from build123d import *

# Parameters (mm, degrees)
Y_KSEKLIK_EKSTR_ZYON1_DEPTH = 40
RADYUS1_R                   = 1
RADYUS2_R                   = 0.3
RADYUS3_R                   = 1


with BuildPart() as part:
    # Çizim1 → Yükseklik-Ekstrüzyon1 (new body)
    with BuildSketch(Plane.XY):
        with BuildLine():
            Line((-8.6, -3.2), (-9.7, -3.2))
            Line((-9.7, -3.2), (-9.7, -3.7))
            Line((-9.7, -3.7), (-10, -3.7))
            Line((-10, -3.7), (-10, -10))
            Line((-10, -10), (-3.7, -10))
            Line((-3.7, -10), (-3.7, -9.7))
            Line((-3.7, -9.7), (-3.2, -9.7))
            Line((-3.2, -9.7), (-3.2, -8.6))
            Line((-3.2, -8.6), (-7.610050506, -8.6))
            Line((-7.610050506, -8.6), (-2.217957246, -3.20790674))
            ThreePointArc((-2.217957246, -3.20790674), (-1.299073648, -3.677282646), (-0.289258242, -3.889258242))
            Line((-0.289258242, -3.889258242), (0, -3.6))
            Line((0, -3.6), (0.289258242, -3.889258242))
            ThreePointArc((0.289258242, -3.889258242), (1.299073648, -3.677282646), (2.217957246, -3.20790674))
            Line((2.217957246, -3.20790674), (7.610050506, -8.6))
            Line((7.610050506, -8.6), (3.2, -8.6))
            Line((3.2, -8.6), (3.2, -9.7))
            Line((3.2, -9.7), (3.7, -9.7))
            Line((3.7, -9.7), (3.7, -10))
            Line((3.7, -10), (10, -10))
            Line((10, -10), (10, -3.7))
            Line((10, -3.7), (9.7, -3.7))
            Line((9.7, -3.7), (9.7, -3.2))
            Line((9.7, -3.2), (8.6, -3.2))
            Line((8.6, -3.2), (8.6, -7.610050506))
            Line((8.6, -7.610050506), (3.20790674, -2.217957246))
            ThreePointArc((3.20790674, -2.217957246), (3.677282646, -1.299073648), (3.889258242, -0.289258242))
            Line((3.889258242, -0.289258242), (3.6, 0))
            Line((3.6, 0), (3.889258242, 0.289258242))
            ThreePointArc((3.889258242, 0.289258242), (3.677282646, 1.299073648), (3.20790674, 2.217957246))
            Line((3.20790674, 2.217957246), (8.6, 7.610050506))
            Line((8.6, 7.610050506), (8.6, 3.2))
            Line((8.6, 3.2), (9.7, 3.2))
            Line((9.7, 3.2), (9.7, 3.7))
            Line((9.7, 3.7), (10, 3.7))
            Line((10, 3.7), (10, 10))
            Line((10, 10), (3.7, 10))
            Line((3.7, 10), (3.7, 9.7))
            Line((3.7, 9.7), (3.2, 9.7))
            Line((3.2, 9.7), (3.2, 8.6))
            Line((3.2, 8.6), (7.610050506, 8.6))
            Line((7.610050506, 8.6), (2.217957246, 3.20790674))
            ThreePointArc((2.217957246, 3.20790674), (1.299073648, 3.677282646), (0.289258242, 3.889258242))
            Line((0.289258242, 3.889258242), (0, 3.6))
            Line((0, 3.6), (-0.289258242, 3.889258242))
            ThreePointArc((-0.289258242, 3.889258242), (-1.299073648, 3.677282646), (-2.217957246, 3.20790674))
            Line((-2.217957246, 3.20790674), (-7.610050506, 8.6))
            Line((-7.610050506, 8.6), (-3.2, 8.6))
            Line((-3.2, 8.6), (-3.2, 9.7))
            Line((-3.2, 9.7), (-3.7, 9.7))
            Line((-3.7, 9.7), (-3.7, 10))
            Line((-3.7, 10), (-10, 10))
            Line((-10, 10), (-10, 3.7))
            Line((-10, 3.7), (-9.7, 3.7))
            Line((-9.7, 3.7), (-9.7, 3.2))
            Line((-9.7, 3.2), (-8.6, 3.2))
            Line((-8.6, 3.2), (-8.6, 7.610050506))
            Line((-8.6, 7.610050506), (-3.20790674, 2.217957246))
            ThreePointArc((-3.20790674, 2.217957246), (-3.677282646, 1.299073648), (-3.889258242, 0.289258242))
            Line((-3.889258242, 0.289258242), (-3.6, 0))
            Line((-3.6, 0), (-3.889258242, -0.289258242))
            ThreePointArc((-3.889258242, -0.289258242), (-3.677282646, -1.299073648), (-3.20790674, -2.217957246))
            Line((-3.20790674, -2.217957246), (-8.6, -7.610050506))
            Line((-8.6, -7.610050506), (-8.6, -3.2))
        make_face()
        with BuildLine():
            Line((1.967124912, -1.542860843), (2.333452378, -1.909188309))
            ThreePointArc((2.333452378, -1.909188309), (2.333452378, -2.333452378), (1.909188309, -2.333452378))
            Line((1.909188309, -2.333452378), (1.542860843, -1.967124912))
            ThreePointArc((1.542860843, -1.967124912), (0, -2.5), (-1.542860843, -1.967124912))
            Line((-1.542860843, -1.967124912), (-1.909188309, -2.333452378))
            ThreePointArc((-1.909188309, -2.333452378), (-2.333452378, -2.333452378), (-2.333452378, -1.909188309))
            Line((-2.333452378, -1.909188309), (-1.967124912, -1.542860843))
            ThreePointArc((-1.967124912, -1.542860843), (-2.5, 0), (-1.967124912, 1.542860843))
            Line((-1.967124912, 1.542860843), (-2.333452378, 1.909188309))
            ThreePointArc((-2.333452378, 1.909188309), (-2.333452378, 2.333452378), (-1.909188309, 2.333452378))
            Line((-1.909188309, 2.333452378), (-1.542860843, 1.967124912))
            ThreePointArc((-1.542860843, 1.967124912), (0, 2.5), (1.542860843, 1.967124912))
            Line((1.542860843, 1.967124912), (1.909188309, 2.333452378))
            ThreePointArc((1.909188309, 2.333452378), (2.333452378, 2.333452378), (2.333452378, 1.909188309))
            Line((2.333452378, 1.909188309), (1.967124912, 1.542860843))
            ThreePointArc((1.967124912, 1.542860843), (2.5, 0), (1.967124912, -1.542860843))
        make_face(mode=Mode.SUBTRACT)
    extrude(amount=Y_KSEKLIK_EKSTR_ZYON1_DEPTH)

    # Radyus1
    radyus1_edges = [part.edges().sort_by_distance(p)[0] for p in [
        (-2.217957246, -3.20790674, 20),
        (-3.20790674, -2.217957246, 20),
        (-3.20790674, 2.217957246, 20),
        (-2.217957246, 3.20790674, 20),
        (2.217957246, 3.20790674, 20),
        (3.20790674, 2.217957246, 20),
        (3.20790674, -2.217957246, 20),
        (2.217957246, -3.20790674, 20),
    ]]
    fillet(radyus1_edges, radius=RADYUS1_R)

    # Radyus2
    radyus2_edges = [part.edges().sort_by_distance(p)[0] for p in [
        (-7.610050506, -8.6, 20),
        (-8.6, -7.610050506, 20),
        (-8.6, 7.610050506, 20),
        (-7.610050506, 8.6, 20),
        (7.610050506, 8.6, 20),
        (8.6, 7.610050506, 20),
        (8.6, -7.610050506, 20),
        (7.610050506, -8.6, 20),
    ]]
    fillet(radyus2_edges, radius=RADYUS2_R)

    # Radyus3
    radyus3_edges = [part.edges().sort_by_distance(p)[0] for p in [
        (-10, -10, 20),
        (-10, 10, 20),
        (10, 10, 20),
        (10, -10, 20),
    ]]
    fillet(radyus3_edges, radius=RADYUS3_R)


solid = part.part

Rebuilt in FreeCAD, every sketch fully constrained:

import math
import FreeCAD as App
import Part
import Sketcher


def edges_at(feature, points):
    """Names of the edges that pass closest to the given points."""
    edges = feature.Shape.Edges
    near = lambda p: min(range(len(edges)), key=lambda i: edges[i].distToShape(Part.Vertex(*p))[0])
    return sorted({f"Edge{near(p) + 1}" for p in points})

doc = App.newDocument("Part")
params = doc.addObject("Spreadsheet::Sheet", "Params")
for row, (alias, value) in enumerate([
    ("sketch1_radius", "3.9 mm"),
    ("sketch1_radius2", "2.5 mm"),
    ("sketch1_radius3", "0.3 mm"),
    ("sketch1_width", "1.1 mm"),
    ("sketch1_width2", "0.3 mm"),
    ("pad1_length", "40 mm"),
    ("fillet_radius", "1 mm"),
    ("fillet2_radius", "0.3 mm"),
    ("fillet3_radius", "1 mm"),
], start=1):
    params.set(f"A{row}", alias)
    params.set(f"B{row}", "=" + value)
    params.setAlias(f"B{row}", alias)

body = doc.addObject("PartDesign::Body", "Body")

# Sketch on XY plane
sketch1 = doc.addObject("Sketcher::SketchObject", "Sketch")
body.addObject(sketch1)
sketch1.AttachmentSupport = (doc.XY_Plane, [""])
sketch1.MapMode = "FlatFace"
sketch1.addGeometry(Part.LineSegment(App.Vector(-8.6, -3.2, 0), App.Vector(-9.7, -3.2, 0)), False)
sketch1.addGeometry(Part.LineSegment(App.Vector(-9.7, -3.2, 0), App.Vector(-9.7, -3.7, 0)), False)
sketch1.addGeometry(Part.LineSegment(App.Vector(-9.7, -3.7, 0), App.Vector(-10, -3.7, 0)), False)
sketch1.addGeometry(Part.LineSegment(App.Vector(-10, -3.7, 0), App.Vector(-10, -10, 0)), False)
sketch1.addGeometry(Part.LineSegment(App.Vector(-10, -10, 0), App.Vector(-3.7, -10, 0)), False)
sketch1.addGeometry(Part.LineSegment(App.Vector(-3.7, -10, 0), App.Vector(-3.7, -9.7, 0)), False)
sketch1.addGeometry(Part.LineSegment(App.Vector(-3.7, -9.7, 0), App.Vector(-3.2, -9.7, 0)), False)
sketch1.addGeometry(Part.LineSegment(App.Vector(-3.2, -9.7, 0), App.Vector(-3.2, -8.6, 0)), False)
sketch1.addGeometry(Part.LineSegment(App.Vector(-3.2, -8.6, 0), App.Vector(-7.610051, -8.6, 0)), False)
sketch1.addGeometry(Part.LineSegment(App.Vector(-7.610051, -8.6, 0), App.Vector(-2.217957, -3.207907, 0)), False)
sketch1.addGeometry(Part.ArcOfCircle(Part.Circle(App.Vector(0, 0, 0), App.Vector(0, 0, 1), 3.9), math.radians(-124.660109), math.radians(-94.253464)), False)
sketch1.addGeometry(Part.LineSegment(App.Vector(-0.289258, -3.889258, 0), App.Vector(0, -3.6, 0)), False)
sketch1.addGeometry(Part.LineSegment(App.Vector(0, -3.6, 0), App.Vector(0.289258, -3.889258, 0)), False)
sketch1.addGeometry(Part.ArcOfCircle(Part.Circle(App.Vector(0, 0, 0), App.Vector(0, 0, 1), 3.9), math.radians(-85.746536), math.radians(-55.339891)), False)
sketch1.addGeometry(Part.LineSegment(App.Vector(2.217957, -3.207907, 0), App.Vector(7.610051, -8.6, 0)), False)
sketch1.addGeometry(Part.LineSegment(App.Vector(7.610051, -8.6, 0), App.Vector(3.2, -8.6, 0)), False)
sketch1.addGeometry(Part.LineSegment(App.Vector(3.2, -8.6, 0), App.Vector(3.2, -9.7, 0)), False)
sketch1.addGeometry(Part.LineSegment(App.Vector(3.2, -9.7, 0), App.Vector(3.7, -9.7, 0)), False)
sketch1.addGeometry(Part.LineSegment(App.Vector(3.7, -9.7, 0), App.Vector(3.7, -10, 0)), False)
sketch1.addGeometry(Part.LineSegment(App.Vector(3.7, -10, 0), App.Vector(10, -10, 0)), False)
sketch1.addGeometry(Part.LineSegment(App.Vector(10, -10, 0), App.Vector(10, -3.7, 0)), False)
sketch1.addGeometry(Part.LineSegment(App.Vector(10, -3.7, 0), App.Vector(9.7, -3.7, 0)), False)
sketch1.addGeometry(Part.LineSegment(App.Vector(9.7, -3.7, 0), App.Vector(9.7, -3.2, 0)), False)
sketch1.addGeometry(Part.LineSegment(App.Vector(9.7, -3.2, 0), App.Vector(8.6, -3.2, 0)), False)
sketch1.addGeometry(Part.LineSegment(App.Vector(8.6, -3.2, 0), App.Vector(8.6, -7.610051, 0)), False)
sketch1.addGeometry(Part.LineSegment(App.Vector(8.6, -7.610051, 0), App.Vector(3.207907, -2.217957, 0)), False)
sketch1.addGeometry(Part.ArcOfCircle(Part.Circle(App.Vector(0, 0, 0), App.Vector(0, 0, 1), 3.9), math.radians(-34.660109), math.radians(-4.253464)), False)
sketch1.addGeometry(Part.LineSegment(App.Vector(3.889258, -0.289258, 0), App.Vector(3.6, 0, 0)), False)
sketch1.addGeometry(Part.LineSegment(App.Vector(3.6, 0, 0), App.Vector(3.889258, 0.289258, 0)), False)
sketch1.addGeometry(Part.ArcOfCircle(Part.Circle(App.Vector(0, 0, 0), App.Vector(0, 0, 1), 3.9), math.radians(4.253464), math.radians(34.660109)), False)
sketch1.addGeometry(Part.LineSegment(App.Vector(3.207907, 2.217957, 0), App.Vector(8.6, 7.610051, 0)), False)
sketch1.addGeometry(Part.LineSegment(App.Vector(8.6, 7.610051, 0), App.Vector(8.6, 3.2, 0)), False)
sketch1.addGeometry(Part.LineSegment(App.Vector(8.6, 3.2, 0), App.Vector(9.7, 3.2, 0)), False)
sketch1.addGeometry(Part.LineSegment(App.Vector(9.7, 3.2, 0), App.Vector(9.7, 3.7, 0)), False)
sketch1.addGeometry(Part.LineSegment(App.Vector(9.7, 3.7, 0), App.Vector(10, 3.7, 0)), False)
sketch1.addGeometry(Part.LineSegment(App.Vector(10, 3.7, 0), App.Vector(10, 10, 0)), False)
sketch1.addGeometry(Part.LineSegment(App.Vector(10, 10, 0), App.Vector(3.7, 10, 0)), False)
sketch1.addGeometry(Part.LineSegment(App.Vector(3.7, 10, 0), App.Vector(3.7, 9.7, 0)), False)
sketch1.addGeometry(Part.LineSegment(App.Vector(3.7, 9.7, 0), App.Vector(3.2, 9.7, 0)), False)
sketch1.addGeometry(Part.LineSegment(App.Vector(3.2, 9.7, 0), App.Vector(3.2, 8.6, 0)), False)
sketch1.addGeometry(Part.LineSegment(App.Vector(3.2, 8.6, 0), App.Vector(7.610051, 8.6, 0)), False)
sketch1.addGeometry(Part.LineSegment(App.Vector(7.610051, 8.6, 0), App.Vector(2.217957, 3.207907, 0)), False)
sketch1.addGeometry(Part.ArcOfCircle(Part.Circle(App.Vector(0, 0, 0), App.Vector(0, 0, 1), 3.9), math.radians(55.339891), math.radians(85.746536)), False)
sketch1.addGeometry(Part.LineSegment(App.Vector(0.289258, 3.889258, 0), App.Vector(0, 3.6, 0)), False)
sketch1.addGeometry(Part.LineSegment(App.Vector(0, 3.6, 0), App.Vector(-0.289258, 3.889258, 0)), False)
sketch1.addGeometry(Part.ArcOfCircle(Part.Circle(App.Vector(0, 0, 0), App.Vector(0, 0, 1), 3.9), math.radians(94.253464), math.radians(124.660109)), False)
sketch1.addGeometry(Part.LineSegment(App.Vector(-2.217957, 3.207907, 0), App.Vector(-7.610051, 8.6, 0)), False)
sketch1.addGeometry(Part.LineSegment(App.Vector(-7.610051, 8.6, 0), App.Vector(-3.2, 8.6, 0)), False)
sketch1.addGeometry(Part.LineSegment(App.Vector(-3.2, 8.6, 0), App.Vector(-3.2, 9.7, 0)), False)
sketch1.addGeometry(Part.LineSegment(App.Vector(-3.2, 9.7, 0), App.Vector(-3.7, 9.7, 0)), False)
sketch1.addGeometry(Part.LineSegment(App.Vector(-3.7, 9.7, 0), App.Vector(-3.7, 10, 0)), False)
sketch1.addGeometry(Part.LineSegment(App.Vector(-3.7, 10, 0), App.Vector(-10, 10, 0)), False)
sketch1.addGeometry(Part.LineSegment(App.Vector(-10, 10, 0), App.Vector(-10, 3.7, 0)), False)
sketch1.addGeometry(Part.LineSegment(App.Vector(-10, 3.7, 0), App.Vector(-9.7, 3.7, 0)), False)
sketch1.addGeometry(Part.LineSegment(App.Vector(-9.7, 3.7, 0), App.Vector(-9.7, 3.2, 0)), False)
sketch1.addGeometry(Part.LineSegment(App.Vector(-9.7, 3.2, 0), App.Vector(-8.6, 3.2, 0)), False)
sketch1.addGeometry(Part.LineSegment(App.Vector(-8.6, 3.2, 0), App.Vector(-8.6, 7.610051, 0)), False)
sketch1.addGeometry(Part.LineSegment(App.Vector(-8.6, 7.610051, 0), App.Vector(-3.207907, 2.217957, 0)), False)
sketch1.addGeometry(Part.ArcOfCircle(Part.Circle(App.Vector(0, 0, 0), App.Vector(0, 0, 1), 3.9), math.radians(145.339891), math.radians(175.746536)), False)
sketch1.addGeometry(Part.LineSegment(App.Vector(-3.889258, 0.289258, 0), App.Vector(-3.6, 0, 0)), False)
sketch1.addGeometry(Part.LineSegment(App.Vector(-3.6, 0, 0), App.Vector(-3.889258, -0.289258, 0)), False)
sketch1.addGeometry(Part.ArcOfCircle(Part.Circle(App.Vector(0, 0, 0), App.Vector(0, 0, 1), 3.9), math.radians(-175.746536), math.radians(-145.339891)), False)
sketch1.addGeometry(Part.LineSegment(App.Vector(-3.207907, -2.217957, 0), App.Vector(-8.6, -7.610051, 0)), False)
sketch1.addGeometry(Part.LineSegment(App.Vector(-8.6, -7.610051, 0), App.Vector(-8.6, -3.2, 0)), False)
sketch1.addGeometry(Part.ArcOfCircle(Part.Circle(App.Vector(0, 0, 0), App.Vector(0, 0, 1), 2.5), math.radians(-38.107897), math.radians(38.107897)), False)
sketch1.addGeometry(Part.LineSegment(App.Vector(1.967125, -1.542861, 0), App.Vector(2.333452, -1.909188, 0)), False)
sketch1.addGeometry(Part.ArcOfCircle(Part.Circle(App.Vector(2.12132, -2.12132, 0), App.Vector(0, 0, 1), 0.3), math.radians(-135), math.radians(45)), False)
sketch1.addGeometry(Part.LineSegment(App.Vector(1.909188, -2.333452, 0), App.Vector(1.542861, -1.967125, 0)), False)
sketch1.addGeometry(Part.ArcOfCircle(Part.Circle(App.Vector(0, 0, 0), App.Vector(0, 0, 1), 2.5), math.radians(-128.107897), math.radians(-51.892103)), False)
sketch1.addGeometry(Part.LineSegment(App.Vector(-1.542861, -1.967125, 0), App.Vector(-1.909188, -2.333452, 0)), False)
sketch1.addGeometry(Part.ArcOfCircle(Part.Circle(App.Vector(-2.12132, -2.12132, 0), App.Vector(0, 0, 1), 0.3), math.radians(135), math.radians(315)), False)
sketch1.addGeometry(Part.LineSegment(App.Vector(-2.333452, -1.909188, 0), App.Vector(-1.967125, -1.542861, 0)), False)
sketch1.addGeometry(Part.ArcOfCircle(Part.Circle(App.Vector(0, 0, 0), App.Vector(0, 0, 1), 2.5), math.radians(141.892103), math.radians(218.107897)), False)
sketch1.addGeometry(Part.LineSegment(App.Vector(-1.967125, 1.542861, 0), App.Vector(-2.333452, 1.909188, 0)), False)
sketch1.addGeometry(Part.ArcOfCircle(Part.Circle(App.Vector(-2.12132, 2.12132, 0), App.Vector(0, 0, 1), 0.3), math.radians(45), math.radians(225)), False)
sketch1.addGeometry(Part.LineSegment(App.Vector(-1.909188, 2.333452, 0), App.Vector(-1.542861, 1.967125, 0)), False)
sketch1.addGeometry(Part.ArcOfCircle(Part.Circle(App.Vector(0, 0, 0), App.Vector(0, 0, 1), 2.5), math.radians(51.892103), math.radians(128.107897)), False)
sketch1.addGeometry(Part.LineSegment(App.Vector(1.542861, 1.967125, 0), App.Vector(1.909188, 2.333452, 0)), False)
sketch1.addGeometry(Part.ArcOfCircle(Part.Circle(App.Vector(2.12132, 2.12132, 0), App.Vector(0, 0, 1), 0.3), math.radians(-45), math.radians(135)), False)
sketch1.addGeometry(Part.LineSegment(App.Vector(2.333452, 1.909188, 0), App.Vector(1.967125, 1.542861, 0)), False)
sketch1.addConstraint(Sketcher.Constraint("Coincident", 0, 2, 1, 1))
sketch1.addConstraint(Sketcher.Constraint("Coincident", 1, 2, 2, 1))
sketch1.addConstraint(Sketcher.Constraint("Coincident", 2, 2, 3, 1))
sketch1.addConstraint(Sketcher.Constraint("Coincident", 3, 2, 4, 1))
sketch1.addConstraint(Sketcher.Constraint("Coincident", 4, 2, 5, 1))
sketch1.addConstraint(Sketcher.Constraint("Coincident", 5, 2, 6, 1))
sketch1.addConstraint(Sketcher.Constraint("Coincident", 6, 2, 7, 1))
sketch1.addConstraint(Sketcher.Constraint("Coincident", 7, 2, 8, 1))
sketch1.addConstraint(Sketcher.Constraint("Coincident", 8, 2, 9, 1))
sketch1.addConstraint(Sketcher.Constraint("Coincident", 9, 2, 10, 1))
sketch1.addConstraint(Sketcher.Constraint("Coincident", 10, 2, 11, 1))
sketch1.addConstraint(Sketcher.Constraint("Coincident", 11, 2, 12, 1))
sketch1.addConstraint(Sketcher.Constraint("Coincident", 12, 2, 13, 1))
sketch1.addConstraint(Sketcher.Constraint("Coincident", 13, 2, 14, 1))
sketch1.addConstraint(Sketcher.Constraint("Coincident", 14, 2, 15, 1))
sketch1.addConstraint(Sketcher.Constraint("Coincident", 15, 2, 16, 1))
sketch1.addConstraint(Sketcher.Constraint("Coincident", 16, 2, 17, 1))
sketch1.addConstraint(Sketcher.Constraint("Coincident", 17, 2, 18, 1))
sketch1.addConstraint(Sketcher.Constraint("Coincident", 18, 2, 19, 1))
sketch1.addConstraint(Sketcher.Constraint("Coincident", 19, 2, 20, 1))
sketch1.addConstraint(Sketcher.Constraint("Coincident", 20, 2, 21, 1))
sketch1.addConstraint(Sketcher.Constraint("Coincident", 21, 2, 22, 1))
sketch1.addConstraint(Sketcher.Constraint("Coincident", 22, 2, 23, 1))
sketch1.addConstraint(Sketcher.Constraint("Coincident", 23, 2, 24, 1))
sketch1.addConstraint(Sketcher.Constraint("Coincident", 24, 2, 25, 1))
sketch1.addConstraint(Sketcher.Constraint("Coincident", 25, 2, 26, 1))
sketch1.addConstraint(Sketcher.Constraint("Coincident", 26, 2, 27, 1))
sketch1.addConstraint(Sketcher.Constraint("Coincident", 27, 2, 28, 1))
sketch1.addConstraint(Sketcher.Constraint("Coincident", 28, 2, 29, 1))
sketch1.addConstraint(Sketcher.Constraint("Coincident", 29, 2, 30, 1))
sketch1.addConstraint(Sketcher.Constraint("Coincident", 30, 2, 31, 1))
sketch1.addConstraint(Sketcher.Constraint("Coincident", 31, 2, 32, 1))
sketch1.addConstraint(Sketcher.Constraint("Coincident", 32, 2, 33, 1))
sketch1.addConstraint(Sketcher.Constraint("Coincident", 33, 2, 34, 1))
sketch1.addConstraint(Sketcher.Constraint("Coincident", 34, 2, 35, 1))
sketch1.addConstraint(Sketcher.Constraint("Coincident", 35, 2, 36, 1))
sketch1.addConstraint(Sketcher.Constraint("Coincident", 36, 2, 37, 1))
sketch1.addConstraint(Sketcher.Constraint("Coincident", 37, 2, 38, 1))
sketch1.addConstraint(Sketcher.Constraint("Coincident", 38, 2, 39, 1))
sketch1.addConstraint(Sketcher.Constraint("Coincident", 39, 2, 40, 1))
sketch1.addConstraint(Sketcher.Constraint("Coincident", 40, 2, 41, 1))
sketch1.addConstraint(Sketcher.Constraint("Coincident", 41, 2, 42, 1))
sketch1.addConstraint(Sketcher.Constraint("Coincident", 42, 2, 43, 1))
sketch1.addConstraint(Sketcher.Constraint("Coincident", 43, 2, 44, 1))
sketch1.addConstraint(Sketcher.Constraint("Coincident", 44, 2, 45, 1))
sketch1.addConstraint(Sketcher.Constraint("Coincident", 45, 2, 46, 1))
sketch1.addConstraint(Sketcher.Constraint("Coincident", 46, 2, 47, 1))
sketch1.addConstraint(Sketcher.Constraint("Coincident", 47, 2, 48, 1))
sketch1.addConstraint(Sketcher.Constraint("Coincident", 48, 2, 49, 1))
sketch1.addConstraint(Sketcher.Constraint("Coincident", 49, 2, 50, 1))
sketch1.addConstraint(Sketcher.Constraint("Coincident", 50, 2, 51, 1))
sketch1.addConstraint(Sketcher.Constraint("Coincident", 51, 2, 52, 1))
sketch1.addConstraint(Sketcher.Constraint("Coincident", 52, 2, 53, 1))
sketch1.addConstraint(Sketcher.Constraint("Coincident", 53, 2, 54, 1))
sketch1.addConstraint(Sketcher.Constraint("Coincident", 54, 2, 55, 1))
sketch1.addConstraint(Sketcher.Constraint("Coincident", 55, 2, 56, 1))
sketch1.addConstraint(Sketcher.Constraint("Coincident", 56, 2, 57, 1))
sketch1.addConstraint(Sketcher.Constraint("Coincident", 57, 2, 58, 1))
sketch1.addConstraint(Sketcher.Constraint("Coincident", 58, 2, 59, 1))
sketch1.addConstraint(Sketcher.Constraint("Coincident", 59, 2, 60, 1))
sketch1.addConstraint(Sketcher.Constraint("Coincident", 60, 2, 61, 1))
sketch1.addConstraint(Sketcher.Constraint("Coincident", 61, 2, 62, 1))
sketch1.addConstraint(Sketcher.Constraint("Coincident", 62, 2, 63, 1))
sketch1.addConstraint(Sketcher.Constraint("Coincident", 63, 2, 0, 1))
sketch1.addConstraint(Sketcher.Constraint("Coincident", 64, 1, 65, 1))
sketch1.addConstraint(Sketcher.Constraint("Tangent", 65, 2, 66, 2))
sketch1.addConstraint(Sketcher.Constraint("Tangent", 66, 1, 67, 1))
sketch1.addConstraint(Sketcher.Constraint("Coincident", 67, 2, 68, 2))
sketch1.addConstraint(Sketcher.Constraint("Coincident", 68, 1, 69, 1))
sketch1.addConstraint(Sketcher.Constraint("Tangent", 69, 2, 70, 2))
sketch1.addConstraint(Sketcher.Constraint("Tangent", 70, 1, 71, 1))
sketch1.addConstraint(Sketcher.Constraint("Coincident", 71, 2, 72, 2))
sketch1.addConstraint(Sketcher.Constraint("Coincident", 72, 1, 73, 1))
sketch1.addConstraint(Sketcher.Constraint("Tangent", 73, 2, 74, 2))
sketch1.addConstraint(Sketcher.Constraint("Tangent", 74, 1, 75, 1))
sketch1.addConstraint(Sketcher.Constraint("Coincident", 75, 2, 76, 2))
sketch1.addConstraint(Sketcher.Constraint("Coincident", 76, 1, 77, 1))
sketch1.addConstraint(Sketcher.Constraint("Tangent", 77, 2, 78, 2))
sketch1.addConstraint(Sketcher.Constraint("Tangent", 78, 1, 79, 1))
sketch1.addConstraint(Sketcher.Constraint("Coincident", 79, 2, 64, 2))
sketch1.addConstraint(Sketcher.Constraint("Horizontal", 0))
sketch1.addConstraint(Sketcher.Constraint("Vertical", 1))
sketch1.addConstraint(Sketcher.Constraint("Horizontal", 2))
sketch1.addConstraint(Sketcher.Constraint("Vertical", 3))
sketch1.addConstraint(Sketcher.Constraint("Horizontal", 4))
sketch1.addConstraint(Sketcher.Constraint("Vertical", 5))
sketch1.addConstraint(Sketcher.Constraint("Horizontal", 6))
sketch1.addConstraint(Sketcher.Constraint("Vertical", 7))
sketch1.addConstraint(Sketcher.Constraint("Horizontal", 8))
sketch1.addConstraint(Sketcher.Constraint("Horizontal", 15))
sketch1.addConstraint(Sketcher.Constraint("Vertical", 16))
sketch1.addConstraint(Sketcher.Constraint("Horizontal", 17))
sketch1.addConstraint(Sketcher.Constraint("Vertical", 18))
sketch1.addConstraint(Sketcher.Constraint("Horizontal", 19))
sketch1.addConstraint(Sketcher.Constraint("Vertical", 20))
sketch1.addConstraint(Sketcher.Constraint("Horizontal", 21))
sketch1.addConstraint(Sketcher.Constraint("Vertical", 22))
sketch1.addConstraint(Sketcher.Constraint("Horizontal", 23))
sketch1.addConstraint(Sketcher.Constraint("Vertical", 24))
sketch1.addConstraint(Sketcher.Constraint("Vertical", 31))
sketch1.addConstraint(Sketcher.Constraint("Horizontal", 32))
sketch1.addConstraint(Sketcher.Constraint("Vertical", 33))
sketch1.addConstraint(Sketcher.Constraint("Horizontal", 34))
sketch1.addConstraint(Sketcher.Constraint("Vertical", 35))
sketch1.addConstraint(Sketcher.Constraint("Horizontal", 36))
sketch1.addConstraint(Sketcher.Constraint("Vertical", 37))
sketch1.addConstraint(Sketcher.Constraint("Horizontal", 38))
sketch1.addConstraint(Sketcher.Constraint("Vertical", 39))
sketch1.addConstraint(Sketcher.Constraint("Horizontal", 40))
sketch1.addConstraint(Sketcher.Constraint("Horizontal", 47))
sketch1.addConstraint(Sketcher.Constraint("Vertical", 48))
sketch1.addConstraint(Sketcher.Constraint("Horizontal", 49))
sketch1.addConstraint(Sketcher.Constraint("Vertical", 50))
sketch1.addConstraint(Sketcher.Constraint("Horizontal", 51))
sketch1.addConstraint(Sketcher.Constraint("Vertical", 52))
sketch1.addConstraint(Sketcher.Constraint("Horizontal", 53))
sketch1.addConstraint(Sketcher.Constraint("Vertical", 54))
sketch1.addConstraint(Sketcher.Constraint("Horizontal", 55))
sketch1.addConstraint(Sketcher.Constraint("Vertical", 56))
sketch1.addConstraint(Sketcher.Constraint("Vertical", 63))
sketch1.addConstraint(Sketcher.Constraint("Coincident", 10, 3, -1, 1))
sketch1.addConstraint(Sketcher.Constraint("Coincident", 13, 3, -1, 1))
sketch1.addConstraint(Sketcher.Constraint("Coincident", 26, 3, -1, 1))
sketch1.addConstraint(Sketcher.Constraint("Coincident", 29, 3, -1, 1))
sketch1.addConstraint(Sketcher.Constraint("Coincident", 42, 3, -1, 1))
sketch1.addConstraint(Sketcher.Constraint("Coincident", 45, 3, -1, 1))
sketch1.addConstraint(Sketcher.Constraint("Coincident", 58, 3, -1, 1))
sketch1.addConstraint(Sketcher.Constraint("Coincident", 61, 3, -1, 1))
sketch1.addConstraint(Sketcher.Constraint("Coincident", 64, 3, -1, 1))
sketch1.addConstraint(Sketcher.Constraint("Coincident", 68, 3, -1, 1))
sketch1.addConstraint(Sketcher.Constraint("Coincident", 72, 3, -1, 1))
sketch1.addConstraint(Sketcher.Constraint("Coincident", 76, 3, -1, 1))
sketch1.addConstraint(Sketcher.Constraint("Equal", 10, 13))
sketch1.addConstraint(Sketcher.Constraint("Equal", 13, 26))
sketch1.addConstraint(Sketcher.Constraint("Equal", 26, 29))
sketch1.addConstraint(Sketcher.Constraint("Equal", 29, 42))
sketch1.addConstraint(Sketcher.Constraint("Equal", 42, 45))
sketch1.addConstraint(Sketcher.Constraint("Equal", 45, 58))
sketch1.addConstraint(Sketcher.Constraint("Equal", 58, 61))
sketch1.addConstraint(Sketcher.Constraint("Equal", 64, 68))
sketch1.addConstraint(Sketcher.Constraint("Equal", 66, 70))
sketch1.addConstraint(Sketcher.Constraint("Equal", 68, 72))
sketch1.addConstraint(Sketcher.Constraint("Equal", 70, 74))
sketch1.addConstraint(Sketcher.Constraint("Equal", 72, 76))
sketch1.addConstraint(Sketcher.Constraint("Equal", 74, 78))
sketch1.addConstraint(Sketcher.Constraint("Symmetric", 66, 3, 74, 3, -1, 1))
sketch1.addConstraint(Sketcher.Constraint("Symmetric", 70, 3, 78, 3, -1, 1))
sketch1.addConstraint(Sketcher.Constraint("Symmetric", 0, 2, 32, 2, -1, 1))
sketch1.addConstraint(Sketcher.Constraint("Symmetric", 2, 2, 34, 2, -1, 1))
sketch1.addConstraint(Sketcher.Constraint("Symmetric", 4, 2, 36, 2, -1, 1))
sketch1.addConstraint(Sketcher.Constraint("Symmetric", 6, 2, 38, 2, -1, 1))
sketch1.addConstraint(Sketcher.Constraint("Symmetric", 8, 2, 40, 2, -1, 1))
sketch1.addConstraint(Sketcher.Constraint("Symmetric", 11, 2, 43, 2, -1, 1))
sketch1.addConstraint(Sketcher.Constraint("Symmetric", 14, 2, 46, 2, -1, 1))
sketch1.addConstraint(Sketcher.Constraint("Symmetric", 16, 2, 48, 2, -1, 1))
sketch1.addConstraint(Sketcher.Constraint("Symmetric", 18, 2, 50, 2, -1, 1))
sketch1.addConstraint(Sketcher.Constraint("Symmetric", 20, 2, 52, 2, -1, 1))
sketch1.addConstraint(Sketcher.Constraint("Symmetric", 22, 2, 54, 2, -1, 1))
sketch1.addConstraint(Sketcher.Constraint("Symmetric", 24, 2, 56, 2, -1, 1))
sketch1.addConstraint(Sketcher.Constraint("Symmetric", 27, 2, 59, 2, -1, 1))
sketch1.addConstraint(Sketcher.Constraint("Symmetric", 30, 2, 62, 2, -1, 1))
sketch1.addConstraint(Sketcher.Constraint("Symmetric", 66, 3, 70, 3, -2))
sketch1.addConstraint(Sketcher.Constraint("Symmetric", 8, 2, 14, 2, -2))
sketch1.addConstraint(Sketcher.Constraint("Symmetric", 6, 2, 16, 2, -2))
sketch1.addConstraint(Sketcher.Constraint("Symmetric", 4, 2, 18, 2, -2))
sketch1.addConstraint(Sketcher.Constraint("Symmetric", 2, 2, 20, 2, -2))
sketch1.addConstraint(Sketcher.Constraint("Symmetric", 0, 2, 22, 2, -2))
sketch1.addConstraint(Sketcher.Constraint("Symmetric", 30, 2, 56, 2, -2))
sketch1.addConstraint(Sketcher.Constraint("PointOnObject", 11, 2, -2))
sketch1.addConstraint(Sketcher.Constraint("PointOnObject", 27, 2, -1))
sketch1.addConstraint(Sketcher.Constraint("Parallel", 9, 11))
sketch1.addConstraint(Sketcher.Constraint("Perpendicular", 11, 12))
sketch1.addConstraint(Sketcher.Constraint("Parallel", 12, 14))
sketch1.addConstraint(Sketcher.Constraint("Parallel", 14, 25))
sketch1.addConstraint(Sketcher.Constraint("Parallel", 25, 27))
sketch1.addConstraint(Sketcher.Constraint("Perpendicular", 27, 28))
sketch1.addConstraint(Sketcher.Constraint("Parallel", 28, 30))
sketch1.addConstraint(Sketcher.Constraint("Parallel", 30, 41))
sketch1.addConstraint(Sketcher.Constraint("Parallel", 41, 43))
sketch1.addConstraint(Sketcher.Constraint("Perpendicular", 43, 44))
sketch1.addConstraint(Sketcher.Constraint("Parallel", 44, 46))
sketch1.addConstraint(Sketcher.Constraint("Parallel", 46, 57))
sketch1.addConstraint(Sketcher.Constraint("Parallel", 57, 59))
sketch1.addConstraint(Sketcher.Constraint("Perpendicular", 59, 60))
sketch1.addConstraint(Sketcher.Constraint("Parallel", 60, 62))
sketch1.addConstraint(Sketcher.Constraint("Perpendicular", 62, 65))
sketch1.addConstraint(Sketcher.Constraint("Parallel", 65, 67))
sketch1.addConstraint(Sketcher.Constraint("Perpendicular", 67, 69))
sketch1.addConstraint(Sketcher.Constraint("Parallel", 69, 71))
sketch1.addConstraint(Sketcher.Constraint("Perpendicular", 71, 73))
sketch1.addConstraint(Sketcher.Constraint("Parallel", 73, 75))
sketch1.addConstraint(Sketcher.Constraint("Perpendicular", 75, 77))
sketch1.addConstraint(Sketcher.Constraint("Parallel", 77, 79))
sketch1.addConstraint(Sketcher.Constraint("Horizontal", 9, 2, 13, 2))
sketch1.addConstraint(Sketcher.Constraint("Equal", 49, 1))
sketch1.addConstraint(Sketcher.Constraint("Equal", 51, 3))
sketch1.addConstraint(Sketcher.Constraint("Equal", 53, 5))
sketch1.addConstraint(Sketcher.Constraint("Equal", 55, 7))
sketch1.addConstraint(Sketcher.Constraint("Equal", 47, 24))
sketch1.addConstraint(Sketcher.Constraint("Equal", 14, 25))
sketch1.addConstraint(Sketcher.Constraint("Equal", 12, 27))
sketch1.addConstraint(Sketcher.Constraint("Equal", 65, 67))
sketch1.addConstraint(Sketcher.Constraint("Radius", 10, 3.9))
sketch1.addConstraint(Sketcher.Constraint("Radius", 64, 2.5))
sketch1.addConstraint(Sketcher.Constraint("Radius", 66, 0.3))
sketch1.addConstraint(Sketcher.Constraint("DistanceX", 0, 2, 0, 1, 1.1))
sketch1.addConstraint(Sketcher.Constraint("DistanceX", 2, 2, 2, 1, 0.3))
sketch1.addConstraint(Sketcher.Constraint("DistanceX", 4, 1, 4, 2, 6.3))
sketch1.addConstraint(Sketcher.Constraint("DistanceX", 6, 1, 6, 2, 0.5))
sketch1.addConstraint(Sketcher.Constraint("DistanceX", 2, 2, -1, 1, 10.0))
sketch1.addConstraint(Sketcher.Constraint("DistanceY", 11, 2, -1, 1, 3.6))
sketch1.addConstraint(Sketcher.Constraint("DistanceX", 8, 2, 8, 1, 4.410051))
sketch1.addConstraint(Sketcher.Constraint("DistanceX", -1, 1, 66, 3, 2.12132))
sketch1.setExpression("Constraints[202]", "Params.sketch1_radius")
sketch1.setExpression("Constraints[203]", "Params.sketch1_radius2")
sketch1.setExpression("Constraints[204]", "Params.sketch1_radius3")
sketch1.setExpression("Constraints[205]", "Params.sketch1_width")
sketch1.setExpression("Constraints[206]", "Params.sketch1_width2")
pad1 = doc.addObject("PartDesign::Pad", "Pad")
body.addObject(pad1)
pad1.Profile = sketch1
pad1.setExpression("Length", "Params.pad1_length")
doc.recompute()

fillet = doc.addObject("PartDesign::Fillet", "Fillet")
body.addObject(fillet)
fillet.Base = (pad1, edges_at(pad1, [
    (-2.218, -3.208, 20),
    (-3.208, -2.218, 20),
    (-3.208, 2.218, 20),
    (-2.218, 3.208, 20),
    (2.218, 3.208, 20),
    (3.208, 2.218, 20),
    (3.208, -2.218, 20),
    (2.218, -3.208, 20),
]))
fillet.setExpression("Radius", "Params.fillet_radius")
doc.recompute()

fillet2 = doc.addObject("PartDesign::Fillet", "Fillet001")
body.addObject(fillet2)
fillet2.Base = (fillet, edges_at(fillet, [
    (-7.61, -8.6, 20),
    (-8.6, -7.61, 20),
    (-8.6, 7.61, 20),
    (-7.61, 8.6, 20),
    (7.61, 8.6, 20),
    (8.6, 7.61, 20),
    (8.6, -7.61, 20),
    (7.61, -8.6, 20),
]))
fillet2.setExpression("Radius", "Params.fillet2_radius")
doc.recompute()

fillet3 = doc.addObject("PartDesign::Fillet", "Fillet002")
body.addObject(fillet3)
fillet3.Base = (fillet2, edges_at(fillet2, [
    (-10, -10, 20),
    (-10, 10, 20),
    (10, 10, 20),
    (10, -10, 20),
]))
fillet3.setExpression("Radius", "Params.fillet3_radius")

doc.recompute()
